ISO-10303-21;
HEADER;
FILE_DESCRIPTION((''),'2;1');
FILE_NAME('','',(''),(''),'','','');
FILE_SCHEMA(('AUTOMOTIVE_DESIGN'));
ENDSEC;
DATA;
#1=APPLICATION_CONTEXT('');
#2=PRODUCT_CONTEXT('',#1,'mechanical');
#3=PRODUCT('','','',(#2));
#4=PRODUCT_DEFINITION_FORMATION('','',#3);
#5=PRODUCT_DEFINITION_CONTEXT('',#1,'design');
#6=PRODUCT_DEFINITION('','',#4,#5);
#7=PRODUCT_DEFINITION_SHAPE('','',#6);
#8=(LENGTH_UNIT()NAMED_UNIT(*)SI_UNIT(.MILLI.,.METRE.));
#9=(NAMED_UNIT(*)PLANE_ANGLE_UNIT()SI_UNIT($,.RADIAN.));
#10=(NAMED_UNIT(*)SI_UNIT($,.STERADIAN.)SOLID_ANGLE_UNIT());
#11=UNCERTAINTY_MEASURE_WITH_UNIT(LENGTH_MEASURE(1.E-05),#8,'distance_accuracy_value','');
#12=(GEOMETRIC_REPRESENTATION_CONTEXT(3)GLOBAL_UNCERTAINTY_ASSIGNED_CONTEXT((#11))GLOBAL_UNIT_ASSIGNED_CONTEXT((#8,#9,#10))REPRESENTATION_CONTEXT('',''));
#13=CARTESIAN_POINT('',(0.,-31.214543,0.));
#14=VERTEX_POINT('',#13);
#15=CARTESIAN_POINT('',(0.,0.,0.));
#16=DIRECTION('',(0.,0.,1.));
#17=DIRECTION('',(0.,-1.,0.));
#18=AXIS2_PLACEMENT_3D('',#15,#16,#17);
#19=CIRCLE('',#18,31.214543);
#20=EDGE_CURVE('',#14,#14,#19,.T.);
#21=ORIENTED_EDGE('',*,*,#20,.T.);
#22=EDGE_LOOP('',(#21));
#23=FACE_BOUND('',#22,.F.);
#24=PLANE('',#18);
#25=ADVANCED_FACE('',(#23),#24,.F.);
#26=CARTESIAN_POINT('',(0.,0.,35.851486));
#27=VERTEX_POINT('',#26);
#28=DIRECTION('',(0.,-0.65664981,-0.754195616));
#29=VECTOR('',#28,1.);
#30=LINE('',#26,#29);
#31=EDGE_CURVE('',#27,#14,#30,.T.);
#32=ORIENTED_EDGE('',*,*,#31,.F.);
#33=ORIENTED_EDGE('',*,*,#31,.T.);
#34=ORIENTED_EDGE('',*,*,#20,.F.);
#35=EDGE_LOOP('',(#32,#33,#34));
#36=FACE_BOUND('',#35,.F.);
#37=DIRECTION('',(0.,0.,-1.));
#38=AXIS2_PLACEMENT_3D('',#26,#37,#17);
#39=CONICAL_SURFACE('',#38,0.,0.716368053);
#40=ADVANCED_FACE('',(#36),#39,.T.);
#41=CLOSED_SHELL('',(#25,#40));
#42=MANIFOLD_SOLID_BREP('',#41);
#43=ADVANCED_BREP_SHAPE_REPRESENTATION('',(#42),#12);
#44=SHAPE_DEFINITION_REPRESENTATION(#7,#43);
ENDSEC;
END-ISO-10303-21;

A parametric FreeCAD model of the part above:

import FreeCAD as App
import Part
import Sketcher
Q = App.Units.Quantity

doc = App.newDocument("Part")
body = doc.addObject("PartDesign::Body", "Body")

# Sketch on YZ plane
sketch1 = body.newObject("Sketcher::SketchObject", "Sketch")
sketch1.AttachmentSupport = (doc.getObject("YZ_Plane"), [""])
sketch1.MapMode = "FlatFace"
sketch1.addGeometry(Part.LineSegment(App.Vector(-31.214543, 0, 0), App.Vector(0, 0, 0)), False)
sketch1.addGeometry(Part.LineSegment(App.Vector(0, 0, 0), App.Vector(0, 35.851486, 0)), False)
sketch1.addGeometry(Part.LineSegment(App.Vector(0, 35.851486, 0), App.Vector(-31.214543, 0, 0)), False)
sketch1.addConstraint(Sketcher.Constraint("Coincident", 0, 2, 1, 1))
sketch1.addConstraint(Sketcher.Constraint("Coincident", 1, 2, 2, 1))
sketch1.addConstraint(Sketcher.Constraint("Coincident", 2, 2, 0, 1))
sketch1.addConstraint(Sketcher.Constraint("Horizontal", 0))
sketch1.addConstraint(Sketcher.Constraint("Vertical", 1))
sketch1.addConstraint(Sketcher.Constraint("Coincident", 0, 2, -1, 1))
sketch1.addConstraint(Sketcher.Constraint("DistanceX", 0, 1, 0, 2, Q("31.214543 mm")))
sketch1.addConstraint(Sketcher.Constraint("DistanceY", 1, 1, 1, 2, Q("35.851486 mm")))
revolution = body.newObject("PartDesign::Revolution", "Revolution")
revolution.Profile = sketch1
revolution.ReferenceAxis = (sketch1, ["V_Axis"])
revolution.Angle = 360

doc.recompute()
